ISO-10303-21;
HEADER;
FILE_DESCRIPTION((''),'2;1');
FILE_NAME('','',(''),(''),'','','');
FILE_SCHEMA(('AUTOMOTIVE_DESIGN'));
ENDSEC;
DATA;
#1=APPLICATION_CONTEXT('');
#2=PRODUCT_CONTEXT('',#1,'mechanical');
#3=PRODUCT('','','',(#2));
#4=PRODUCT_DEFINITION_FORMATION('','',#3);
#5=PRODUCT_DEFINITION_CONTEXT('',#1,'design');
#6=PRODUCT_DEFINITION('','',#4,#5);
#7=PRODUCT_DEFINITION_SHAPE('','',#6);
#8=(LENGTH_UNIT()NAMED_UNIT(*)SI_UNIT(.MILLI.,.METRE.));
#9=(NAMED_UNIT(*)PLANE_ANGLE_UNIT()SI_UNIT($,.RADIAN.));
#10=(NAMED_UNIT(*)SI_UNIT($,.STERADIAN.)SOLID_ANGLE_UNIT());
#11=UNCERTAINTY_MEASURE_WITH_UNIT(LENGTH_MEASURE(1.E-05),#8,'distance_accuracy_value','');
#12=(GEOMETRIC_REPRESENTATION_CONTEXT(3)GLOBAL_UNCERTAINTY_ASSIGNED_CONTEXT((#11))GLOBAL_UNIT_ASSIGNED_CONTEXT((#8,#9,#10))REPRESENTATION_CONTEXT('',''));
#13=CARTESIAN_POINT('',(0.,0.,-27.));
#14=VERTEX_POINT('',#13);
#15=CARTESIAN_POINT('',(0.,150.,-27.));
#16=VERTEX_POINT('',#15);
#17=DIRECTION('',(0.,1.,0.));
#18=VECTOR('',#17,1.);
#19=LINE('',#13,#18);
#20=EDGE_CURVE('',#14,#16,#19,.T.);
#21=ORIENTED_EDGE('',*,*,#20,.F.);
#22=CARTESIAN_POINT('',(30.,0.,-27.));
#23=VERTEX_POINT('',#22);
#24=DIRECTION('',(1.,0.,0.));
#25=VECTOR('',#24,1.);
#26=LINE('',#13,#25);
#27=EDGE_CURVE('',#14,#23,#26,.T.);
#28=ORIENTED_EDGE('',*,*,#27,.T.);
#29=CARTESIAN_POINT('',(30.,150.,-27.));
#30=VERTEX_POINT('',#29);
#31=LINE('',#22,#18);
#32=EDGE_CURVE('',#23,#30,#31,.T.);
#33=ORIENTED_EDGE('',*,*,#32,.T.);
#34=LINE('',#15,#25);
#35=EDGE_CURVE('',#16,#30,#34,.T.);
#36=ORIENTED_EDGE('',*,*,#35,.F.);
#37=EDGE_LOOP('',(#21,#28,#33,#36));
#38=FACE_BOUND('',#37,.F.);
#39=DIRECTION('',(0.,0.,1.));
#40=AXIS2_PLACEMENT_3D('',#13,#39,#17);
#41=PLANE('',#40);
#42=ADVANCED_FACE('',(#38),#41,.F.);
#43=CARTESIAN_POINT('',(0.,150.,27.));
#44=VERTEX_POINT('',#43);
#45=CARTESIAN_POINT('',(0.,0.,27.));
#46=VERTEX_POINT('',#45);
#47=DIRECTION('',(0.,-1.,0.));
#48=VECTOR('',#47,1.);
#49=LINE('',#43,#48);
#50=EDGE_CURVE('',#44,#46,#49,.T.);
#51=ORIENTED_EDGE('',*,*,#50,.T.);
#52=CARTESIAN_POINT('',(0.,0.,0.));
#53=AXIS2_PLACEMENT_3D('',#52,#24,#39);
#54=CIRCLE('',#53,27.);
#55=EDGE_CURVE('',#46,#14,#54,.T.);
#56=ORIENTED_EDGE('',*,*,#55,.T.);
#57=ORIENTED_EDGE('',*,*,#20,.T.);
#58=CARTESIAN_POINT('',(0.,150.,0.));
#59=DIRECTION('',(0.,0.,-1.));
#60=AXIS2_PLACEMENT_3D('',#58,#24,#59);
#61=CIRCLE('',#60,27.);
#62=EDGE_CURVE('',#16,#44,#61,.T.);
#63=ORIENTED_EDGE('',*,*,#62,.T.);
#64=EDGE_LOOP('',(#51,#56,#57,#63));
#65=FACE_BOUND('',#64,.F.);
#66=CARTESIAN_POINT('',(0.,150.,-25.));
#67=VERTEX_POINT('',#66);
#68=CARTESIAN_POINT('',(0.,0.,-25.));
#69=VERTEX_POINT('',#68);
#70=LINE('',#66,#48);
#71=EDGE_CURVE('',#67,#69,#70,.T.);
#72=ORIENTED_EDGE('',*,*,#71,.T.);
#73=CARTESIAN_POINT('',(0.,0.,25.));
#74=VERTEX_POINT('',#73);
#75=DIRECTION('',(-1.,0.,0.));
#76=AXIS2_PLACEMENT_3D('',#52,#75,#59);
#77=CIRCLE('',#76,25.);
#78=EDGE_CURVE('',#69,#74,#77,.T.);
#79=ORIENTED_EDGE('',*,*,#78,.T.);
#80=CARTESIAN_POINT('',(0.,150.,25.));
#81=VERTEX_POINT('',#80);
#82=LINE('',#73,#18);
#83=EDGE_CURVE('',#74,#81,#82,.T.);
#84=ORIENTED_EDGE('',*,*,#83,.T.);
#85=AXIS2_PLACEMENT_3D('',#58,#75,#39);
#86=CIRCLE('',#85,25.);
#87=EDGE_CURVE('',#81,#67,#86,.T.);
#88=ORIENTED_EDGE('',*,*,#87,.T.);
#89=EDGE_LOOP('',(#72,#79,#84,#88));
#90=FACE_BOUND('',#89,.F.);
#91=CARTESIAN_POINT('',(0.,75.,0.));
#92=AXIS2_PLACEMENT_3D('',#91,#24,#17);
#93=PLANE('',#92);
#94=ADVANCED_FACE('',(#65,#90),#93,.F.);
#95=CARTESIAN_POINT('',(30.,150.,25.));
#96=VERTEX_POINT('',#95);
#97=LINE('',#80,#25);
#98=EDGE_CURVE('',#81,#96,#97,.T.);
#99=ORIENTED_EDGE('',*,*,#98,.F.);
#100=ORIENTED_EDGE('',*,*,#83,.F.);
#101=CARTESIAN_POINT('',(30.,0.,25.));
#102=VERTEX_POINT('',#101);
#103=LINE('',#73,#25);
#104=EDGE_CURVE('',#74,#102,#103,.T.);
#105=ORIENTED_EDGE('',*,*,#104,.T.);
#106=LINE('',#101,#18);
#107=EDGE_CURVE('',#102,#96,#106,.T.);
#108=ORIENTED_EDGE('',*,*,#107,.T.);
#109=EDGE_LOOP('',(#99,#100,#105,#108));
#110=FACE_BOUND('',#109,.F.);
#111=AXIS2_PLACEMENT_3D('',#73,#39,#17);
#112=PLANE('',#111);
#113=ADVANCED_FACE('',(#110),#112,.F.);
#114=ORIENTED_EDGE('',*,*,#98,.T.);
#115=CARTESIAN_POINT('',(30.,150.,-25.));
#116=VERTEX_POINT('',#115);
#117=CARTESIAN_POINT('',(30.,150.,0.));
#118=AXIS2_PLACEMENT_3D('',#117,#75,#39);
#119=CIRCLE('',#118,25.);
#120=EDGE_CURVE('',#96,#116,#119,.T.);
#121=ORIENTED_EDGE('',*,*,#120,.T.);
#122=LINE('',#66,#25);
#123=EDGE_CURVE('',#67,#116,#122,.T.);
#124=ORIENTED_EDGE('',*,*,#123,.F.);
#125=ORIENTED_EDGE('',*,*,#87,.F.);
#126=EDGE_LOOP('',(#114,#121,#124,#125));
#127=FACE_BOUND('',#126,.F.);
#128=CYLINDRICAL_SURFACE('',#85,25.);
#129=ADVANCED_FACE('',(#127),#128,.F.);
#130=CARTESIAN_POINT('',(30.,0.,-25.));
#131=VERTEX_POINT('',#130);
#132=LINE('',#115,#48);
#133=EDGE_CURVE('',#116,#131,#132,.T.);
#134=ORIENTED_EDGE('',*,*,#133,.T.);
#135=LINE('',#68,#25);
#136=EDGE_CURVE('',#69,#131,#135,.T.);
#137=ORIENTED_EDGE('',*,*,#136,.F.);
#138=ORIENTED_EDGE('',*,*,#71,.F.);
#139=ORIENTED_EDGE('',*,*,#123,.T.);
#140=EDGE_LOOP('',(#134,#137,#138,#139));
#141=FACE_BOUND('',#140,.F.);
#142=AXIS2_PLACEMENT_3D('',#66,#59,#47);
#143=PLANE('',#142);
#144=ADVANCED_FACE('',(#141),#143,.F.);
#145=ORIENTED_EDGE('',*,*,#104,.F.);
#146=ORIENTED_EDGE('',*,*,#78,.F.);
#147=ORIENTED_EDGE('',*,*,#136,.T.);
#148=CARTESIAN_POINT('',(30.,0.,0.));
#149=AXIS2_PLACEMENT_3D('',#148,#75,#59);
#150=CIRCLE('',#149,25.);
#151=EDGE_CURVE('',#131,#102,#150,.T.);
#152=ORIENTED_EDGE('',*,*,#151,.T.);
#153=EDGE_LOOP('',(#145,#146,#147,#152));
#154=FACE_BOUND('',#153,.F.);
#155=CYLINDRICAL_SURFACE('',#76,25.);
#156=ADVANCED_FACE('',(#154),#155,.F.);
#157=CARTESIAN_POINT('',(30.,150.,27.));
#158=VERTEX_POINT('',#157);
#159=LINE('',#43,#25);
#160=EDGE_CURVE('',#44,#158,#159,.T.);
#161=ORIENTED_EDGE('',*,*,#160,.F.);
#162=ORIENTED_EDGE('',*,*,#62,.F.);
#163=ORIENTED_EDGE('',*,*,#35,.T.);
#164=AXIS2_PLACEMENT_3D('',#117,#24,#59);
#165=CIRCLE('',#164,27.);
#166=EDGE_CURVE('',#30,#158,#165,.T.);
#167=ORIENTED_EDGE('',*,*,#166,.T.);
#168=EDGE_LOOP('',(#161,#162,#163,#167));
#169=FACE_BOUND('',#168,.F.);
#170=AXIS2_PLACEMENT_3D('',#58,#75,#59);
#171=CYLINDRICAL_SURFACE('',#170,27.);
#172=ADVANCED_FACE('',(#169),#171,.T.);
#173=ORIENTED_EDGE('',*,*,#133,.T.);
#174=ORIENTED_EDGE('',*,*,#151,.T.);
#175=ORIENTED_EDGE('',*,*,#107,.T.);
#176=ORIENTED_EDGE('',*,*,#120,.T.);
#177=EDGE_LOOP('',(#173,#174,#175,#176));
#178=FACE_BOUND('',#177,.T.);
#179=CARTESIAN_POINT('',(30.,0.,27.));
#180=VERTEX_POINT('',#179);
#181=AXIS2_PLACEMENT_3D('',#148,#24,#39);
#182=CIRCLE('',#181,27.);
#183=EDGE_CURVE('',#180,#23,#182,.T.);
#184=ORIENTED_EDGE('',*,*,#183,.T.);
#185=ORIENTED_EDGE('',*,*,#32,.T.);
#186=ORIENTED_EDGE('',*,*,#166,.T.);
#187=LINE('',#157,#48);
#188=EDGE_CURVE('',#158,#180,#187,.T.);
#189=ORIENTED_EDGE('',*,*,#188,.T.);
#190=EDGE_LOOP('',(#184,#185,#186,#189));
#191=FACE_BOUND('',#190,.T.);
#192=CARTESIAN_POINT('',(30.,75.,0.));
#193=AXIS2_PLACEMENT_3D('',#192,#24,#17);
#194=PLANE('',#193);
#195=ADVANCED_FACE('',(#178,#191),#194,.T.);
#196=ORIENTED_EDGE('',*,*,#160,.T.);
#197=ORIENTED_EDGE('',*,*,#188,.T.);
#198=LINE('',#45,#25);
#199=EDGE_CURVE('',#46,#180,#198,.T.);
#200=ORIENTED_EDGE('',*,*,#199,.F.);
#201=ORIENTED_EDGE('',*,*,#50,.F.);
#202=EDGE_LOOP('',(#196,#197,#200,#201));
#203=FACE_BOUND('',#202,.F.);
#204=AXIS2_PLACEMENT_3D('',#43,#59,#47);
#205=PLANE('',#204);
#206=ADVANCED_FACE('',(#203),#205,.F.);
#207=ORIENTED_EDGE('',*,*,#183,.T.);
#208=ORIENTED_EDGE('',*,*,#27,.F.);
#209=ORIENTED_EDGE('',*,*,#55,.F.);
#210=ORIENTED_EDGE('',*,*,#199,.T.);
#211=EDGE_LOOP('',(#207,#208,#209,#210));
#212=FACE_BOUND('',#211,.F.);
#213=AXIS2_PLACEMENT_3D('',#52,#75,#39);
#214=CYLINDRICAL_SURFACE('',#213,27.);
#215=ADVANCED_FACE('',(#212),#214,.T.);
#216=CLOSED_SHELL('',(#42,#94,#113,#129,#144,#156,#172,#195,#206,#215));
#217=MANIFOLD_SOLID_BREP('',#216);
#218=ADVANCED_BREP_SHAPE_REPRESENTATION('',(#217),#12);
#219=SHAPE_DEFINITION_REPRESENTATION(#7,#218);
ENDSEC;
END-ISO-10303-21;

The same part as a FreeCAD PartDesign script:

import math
import FreeCAD as App
import Part
import Sketcher
Q = App.Units.Quantity

doc = App.newDocument("Part")
params = doc.addObject("Spreadsheet::Sheet", "Params")
for row, (alias, value) in enumerate([
    ("sketch1_radius", "27 mm"),
    ("sketch1_radius2", "25 mm"),
    ("sketch1_width", "150 mm"),
    ("pad1_length", "30 mm"),
], start=1):
    params.set(f"A{row}", alias)
    params.set(f"B{row}", "=" + value)
    params.setAlias(f"B{row}", alias)

body = doc.addObject("PartDesign::Body", "Body")

sketch1 = body.newObject("Sketcher::SketchObject", "Sketch")
sketch1.AttachmentSupport = (doc.getObject("YZ_Plane"), [""])
sketch1.MapMode = "FlatFace"
sketch1.addGeometry([
    Part.LineSegment(App.Vector(150, 27, 0), App.Vector(0, 27, 0)),
    Part.ArcOfCircle(Part.Circle(App.Vector(0, 0, 0), App.Vector(0, 0, 1), 27), math.radians(90), math.radians(270)),
    Part.LineSegment(App.Vector(0, -27, 0), App.Vector(150, -27, 0)),
    Part.ArcOfCircle(Part.Circle(App.Vector(150, 0, 0), App.Vector(0, 0, 1), 27), math.radians(-90), math.radians(90)),
    Part.LineSegment(App.Vector(150, -25, 0), App.Vector(0, -25, 0)),
    Part.ArcOfCircle(Part.Circle(App.Vector(0, 0, 0), App.Vector(0, 0, 1), 25), math.radians(90), math.radians(270)),
    Part.LineSegment(App.Vector(0, 25, 0), App.Vector(150, 25, 0)),
    Part.ArcOfCircle(Part.Circle(App.Vector(150, 0, 0), App.Vector(0, 0, 1), 25), math.radians(-90), math.radians(90)),
], False)
sketch1.addConstraint([
    Sketcher.Constraint("Tangent", 0, 2, 1, 1),
    Sketcher.Constraint("Tangent", 1, 2, 2, 1),
    Sketcher.Constraint("Tangent", 2, 2, 3, 1),
    Sketcher.Constraint("Tangent", 3, 2, 0, 1),
    Sketcher.Constraint("Tangent", 4, 2, 5, 2),
    Sketcher.Constraint("Tangent", 5, 1, 6, 1),
    Sketcher.Constraint("Tangent", 6, 2, 7, 2),
    Sketcher.Constraint("Tangent", 7, 1, 4, 1),
    Sketcher.Constraint("Horizontal", 0),
    Sketcher.Constraint("Horizontal", 2),
    Sketcher.Constraint("Horizontal", 4),
    Sketcher.Constraint("Horizontal", 6),
    Sketcher.Constraint("Coincident", 1, 3, -1, 1),
    Sketcher.Constraint("Coincident", 5, 3, -1, 1),
    Sketcher.Constraint("Vertical", 7, 3, 2, 2),
    Sketcher.Constraint("Radius", 1, Q("27 mm")),
    Sketcher.Constraint("Radius", 5, Q("25 mm")),
    Sketcher.Constraint("DistanceX", 0, 2, 0, 1, Q("150 mm")),
])
sketch1.setExpression("Constraints[15]", "Params.sketch1_radius")
sketch1.setExpression("Constraints[16]", "Params.sketch1_radius2")
sketch1.setExpression("Constraints[17]", "Params.sketch1_width")
pad1 = body.newObject("PartDesign::Pad", "Pad")
pad1.Profile = sketch1
pad1.setExpression("Length", "Params.pad1_length")

doc.recompute()
